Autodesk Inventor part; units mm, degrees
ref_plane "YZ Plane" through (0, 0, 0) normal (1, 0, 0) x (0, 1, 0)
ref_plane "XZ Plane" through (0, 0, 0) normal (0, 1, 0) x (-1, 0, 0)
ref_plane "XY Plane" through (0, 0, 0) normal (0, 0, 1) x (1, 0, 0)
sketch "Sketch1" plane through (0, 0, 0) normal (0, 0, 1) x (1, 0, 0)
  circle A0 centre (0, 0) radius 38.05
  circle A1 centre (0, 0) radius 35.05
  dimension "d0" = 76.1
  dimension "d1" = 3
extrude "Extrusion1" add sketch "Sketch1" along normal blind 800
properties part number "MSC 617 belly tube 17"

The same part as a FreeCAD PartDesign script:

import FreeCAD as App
import Part
import Sketcher
from FreeCAD import Vector

doc = App.newDocument("Part")
params = doc.addObject("Spreadsheet::Sheet", "Params")
for row, (alias, value) in enumerate([
    ("sketch1_diameter", "76.1 mm"),
    ("sketch1_diameter2", "70.1 mm"),
    ("pad1_length", "800 mm"),
], start=1):
    params.set(f"A{row}", alias)
    params.set(f"B{row}", "=" + value)
    params.setAlias(f"B{row}", alias)

body = doc.addObject("PartDesign::Body", "Body")

# Sketch on XY plane
sketch1 = doc.addObject("Sketcher::SketchObject", "Sketch")
body.addObject(sketch1)
sketch1.AttachmentSupport = (doc.XY_Plane, [""])
sketch1.MapMode = "FlatFace"
sketch1.addGeometry(Part.Circle(Vector(0, 0, 0), Vector(0, 0, 1), 38), False)
sketch1.addGeometry(Part.Circle(Vector(0, 0, 0), Vector(0, 0, 1), 35), False)
sketch1.addConstraint(Sketcher.Constraint("Coincident", 0, 3, -1, 1))
sketch1.addConstraint(Sketcher.Constraint("Coincident", 1, 3, -1, 1))
sketch1.addConstraint(Sketcher.Constraint("Diameter", 0, 76.1))
sketch1.addConstraint(Sketcher.Constraint("Diameter", 1, 70.1))
sketch1.setExpression("Constraints[2]", "Params.sketch1_diameter")
sketch1.setExpression("Constraints[3]", "Params.sketch1_diameter2")
pad1 = doc.addObject("PartDesign::Pad", "Pad")
body.addObject(pad1)
pad1.Profile = sketch1
pad1.setExpression("Length", "Params.pad1_length")

doc.recompute()
